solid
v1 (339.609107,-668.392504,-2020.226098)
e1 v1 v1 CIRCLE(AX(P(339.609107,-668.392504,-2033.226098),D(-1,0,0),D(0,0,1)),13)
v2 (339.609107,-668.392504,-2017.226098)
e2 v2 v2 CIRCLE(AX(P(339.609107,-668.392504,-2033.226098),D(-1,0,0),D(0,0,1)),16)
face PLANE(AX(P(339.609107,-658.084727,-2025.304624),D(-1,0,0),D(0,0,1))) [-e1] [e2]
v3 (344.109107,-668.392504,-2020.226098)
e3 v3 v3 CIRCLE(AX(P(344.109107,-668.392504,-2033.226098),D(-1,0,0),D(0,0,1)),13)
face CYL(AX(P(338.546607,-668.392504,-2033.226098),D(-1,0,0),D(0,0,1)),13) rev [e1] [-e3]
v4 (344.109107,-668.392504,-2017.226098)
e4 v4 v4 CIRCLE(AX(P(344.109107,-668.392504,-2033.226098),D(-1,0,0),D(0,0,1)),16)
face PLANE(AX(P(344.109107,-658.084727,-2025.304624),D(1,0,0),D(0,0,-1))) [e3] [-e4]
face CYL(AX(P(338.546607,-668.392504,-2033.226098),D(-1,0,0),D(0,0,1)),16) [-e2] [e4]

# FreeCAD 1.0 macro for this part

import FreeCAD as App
import Part
import Sketcher
Q = App.Units.Quantity


def add_polygon(sketch, points):
    """Adds a closed chain of lines whose ends are joined by coincident constraints."""
    first, n = sketch.GeometryCount, len(points)
    for a, b in zip(points, points[1:] + points[:1]):
        sketch.addGeometry(Part.LineSegment(App.Vector(*a, 0), App.Vector(*b, 0)), False)
    for i in range(n):
        sketch.addConstraint(Sketcher.Constraint("Coincident", first + i, 2, first + (i + 1) % n, 1))

doc = App.newDocument("Part")
params = doc.addObject("Spreadsheet::Sheet", "Params")
for row, (alias, value) in enumerate([
    ("sketch1_height", "3 mm"),
    ("sketch1_width", "4.5 mm"),
    ("revolution_angle", "360 deg"),
], start=1):
    params.set(f"A{row}", alias)
    params.set(f"B{row}", "=" + value)
    params.setAlias(f"B{row}", alias)

body = doc.addObject("PartDesign::Body", "Body")

sketch1 = body.newObject("Sketcher::SketchObject", "Sketch")
sketch1.Placement = App.Placement(App.Vector(352.928957, -174.926689, -1654.000175), App.Rotation(App.Vector(-1, 0, 0), App.Vector(0, 0.792905912, 0.609344086), App.Vector(0, 0.609344086, -0.792905912), "ZXY"))
add_polygon(sketch1, [(8.8, -606.4), (8.8, -609.4), (13.3, -609.4), (13.3, -606.4)])
sketch1.addGeometry(Part.LineSegment(App.Vector(13.3, -622.4, 0), App.Vector(8.8, -622.4, 0)), True)
sketch1.addConstraint(Sketcher.Constraint("Vertical", 0))
sketch1.addConstraint(Sketcher.Constraint("Horizontal", 1))
sketch1.addConstraint(Sketcher.Constraint("Vertical", 2))
sketch1.addConstraint(Sketcher.Constraint("Horizontal", 3))
sketch1.addConstraint(Sketcher.Constraint("Horizontal", 4))
sketch1.addConstraint(Sketcher.Constraint("Vertical", 2, 2, 4, 1))
sketch1.addConstraint(Sketcher.Constraint("Vertical", 3, 2, 4, 2))
sketch1.addConstraint(Sketcher.Constraint("DistanceY", 0, 2, 0, 1, Q("3 mm")))
sketch1.addConstraint(Sketcher.Constraint("DistanceX", 1, 1, 1, 2, Q("4.5 mm")))
sketch1.addConstraint(Sketcher.Constraint("DistanceY", 4, 1, 1, 2, Q("13 mm")))
sketch1.addConstraint(Sketcher.Constraint("DistanceX", -1, 1, 0, 2, Q("8.81985 mm")))
sketch1.addConstraint(Sketcher.Constraint("DistanceY", 0, 2, -1, 1, Q("609.351035 mm")))
sketch1.setExpression("Constraints[11]", "Params.sketch1_height")
sketch1.setExpression("Constraints[12]", "Params.sketch1_width")
revolution = body.newObject("PartDesign::Revolution", "Revolution")
revolution.Profile = sketch1
revolution.ReferenceAxis = (sketch1, ["Axis0"])
revolution.setExpression("Angle", "Params.revolution_angle")

doc.recompute()
